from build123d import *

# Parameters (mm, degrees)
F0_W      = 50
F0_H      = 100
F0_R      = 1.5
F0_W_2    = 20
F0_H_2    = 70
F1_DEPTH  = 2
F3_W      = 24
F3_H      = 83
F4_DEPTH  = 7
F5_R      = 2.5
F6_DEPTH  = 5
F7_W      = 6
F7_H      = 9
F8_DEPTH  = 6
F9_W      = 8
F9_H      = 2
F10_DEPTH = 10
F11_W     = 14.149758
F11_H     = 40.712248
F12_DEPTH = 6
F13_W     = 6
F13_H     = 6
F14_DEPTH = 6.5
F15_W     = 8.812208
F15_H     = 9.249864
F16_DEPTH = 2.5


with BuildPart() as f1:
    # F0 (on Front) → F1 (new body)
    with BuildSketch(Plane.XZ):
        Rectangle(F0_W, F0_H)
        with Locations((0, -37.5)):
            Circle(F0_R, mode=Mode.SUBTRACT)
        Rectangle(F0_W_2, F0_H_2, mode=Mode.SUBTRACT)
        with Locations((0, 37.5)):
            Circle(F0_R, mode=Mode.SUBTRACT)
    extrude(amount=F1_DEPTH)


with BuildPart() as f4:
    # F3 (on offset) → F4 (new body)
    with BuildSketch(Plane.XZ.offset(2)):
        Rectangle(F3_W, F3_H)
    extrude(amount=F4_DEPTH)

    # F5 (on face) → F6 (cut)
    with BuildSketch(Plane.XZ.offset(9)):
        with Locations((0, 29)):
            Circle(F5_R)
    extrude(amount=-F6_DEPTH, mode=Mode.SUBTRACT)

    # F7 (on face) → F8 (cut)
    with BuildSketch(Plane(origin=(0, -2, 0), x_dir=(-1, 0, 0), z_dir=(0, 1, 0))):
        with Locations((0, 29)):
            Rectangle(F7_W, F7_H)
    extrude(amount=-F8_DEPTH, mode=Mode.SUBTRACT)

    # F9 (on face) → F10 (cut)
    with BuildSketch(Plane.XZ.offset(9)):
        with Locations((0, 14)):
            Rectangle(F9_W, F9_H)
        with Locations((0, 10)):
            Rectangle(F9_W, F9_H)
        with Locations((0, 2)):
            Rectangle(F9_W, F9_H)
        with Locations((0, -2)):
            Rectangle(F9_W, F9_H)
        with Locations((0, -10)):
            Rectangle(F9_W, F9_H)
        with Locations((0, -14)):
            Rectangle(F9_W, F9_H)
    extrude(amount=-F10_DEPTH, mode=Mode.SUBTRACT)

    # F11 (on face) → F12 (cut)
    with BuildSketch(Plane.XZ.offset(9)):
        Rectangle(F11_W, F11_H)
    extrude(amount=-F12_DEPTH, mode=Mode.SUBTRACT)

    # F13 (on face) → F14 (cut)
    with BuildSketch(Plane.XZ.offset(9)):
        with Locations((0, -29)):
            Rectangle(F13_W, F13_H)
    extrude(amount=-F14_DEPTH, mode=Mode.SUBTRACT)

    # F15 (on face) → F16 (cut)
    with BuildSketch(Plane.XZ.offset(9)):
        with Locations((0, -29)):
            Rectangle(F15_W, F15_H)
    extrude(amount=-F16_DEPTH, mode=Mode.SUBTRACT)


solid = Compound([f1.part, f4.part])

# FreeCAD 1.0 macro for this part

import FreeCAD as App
import Part
import Sketcher
from FreeCAD import Vector

doc = App.newDocument("Part")
body = doc.addObject("PartDesign::Body", "Body")

sketch1 = doc.addObject("Sketcher::SketchObject", "Sketch")
body.addObject(sketch1)
sketch1.AttachmentSupport = (doc.XZ_Plane, [""])
sketch1.MapMode = "FlatFace"
sketch1.addGeometry([
    Part.LineSegment(Vector(-25, 50, 0), Vector(-25, -50, 0)),
    Part.LineSegment(Vector(-25, -50, 0), Vector(25, -50, 0)),
    Part.LineSegment(Vector(25, -50, 0), Vector(25, 50, 0)),
    Part.LineSegment(Vector(25, 50, 0), Vector(-25, 50, 0)),
    Part.Circle(Vector(0, -37.5, 0), Vector(0, 0, 1), 1.5),
    Part.LineSegment(Vector(10, -35, 0), Vector(-10, -35, 0)),
    Part.LineSegment(Vector(-10, -35, 0), Vector(-10, 35, 0)),
    Part.LineSegment(Vector(-10, 35, 0), Vector(10, 35, 0)),
    Part.LineSegment(Vector(10, 35, 0), Vector(10, -35, 0)),
    Part.Circle(Vector(0, 37.5, 0), Vector(0, 0, 1), 1.5),
], False)
sketch1.addConstraint([
    Sketcher.Constraint("Coincident", 0, 2, 1, 1),
    Sketcher.Constraint("Coincident", 1, 2, 2, 1),
    Sketcher.Constraint("Coincident", 2, 2, 3, 1),
    Sketcher.Constraint("Coincident", 3, 2, 0, 1),
    Sketcher.Constraint("Coincident", 5, 2, 6, 1),
    Sketcher.Constraint("Coincident", 6, 2, 7, 1),
    Sketcher.Constraint("Coincident", 7, 2, 8, 1),
    Sketcher.Constraint("Coincident", 8, 2, 5, 1),
    Sketcher.Constraint("Vertical", 0),
    Sketcher.Constraint("Horizontal", 1),
    Sketcher.Constraint("Vertical", 2),
    Sketcher.Constraint("Horizontal", 3),
    Sketcher.Constraint("Horizontal", 5),
    Sketcher.Constraint("Vertical", 6),
    Sketcher.Constraint("Horizontal", 7),
    Sketcher.Constraint("Vertical", 8),
    Sketcher.Constraint("Equal", 4, 9),
    Sketcher.Constraint("Symmetric", 4, 3, 9, 3, -1, 1),
    Sketcher.Constraint("Symmetric", 0, 2, 2, 2, -1, 1),
    Sketcher.Constraint("Symmetric", 5, 2, 7, 2, -1, 1),
    Sketcher.Constraint("PointOnObject", 4, 3, -2),
    Sketcher.Constraint("Diameter", 4, 3.0),
    Sketcher.Constraint("DistanceX", 1, 1, 1, 2, 50.0),
    Sketcher.Constraint("DistanceX", 5, 2, 5, 1, 20.0),
    Sketcher.Constraint("DistanceY", 0, 2, 0, 1, 100.0),
    Sketcher.Constraint("DistanceY", 6, 1, 6, 2, 70.0),
    Sketcher.Constraint("DistanceY", 4, 3, 9, 3, 75.0),
])
pad1 = doc.addObject("PartDesign::Pad", "Pad")
body.addObject(pad1)
pad1.Profile = sketch1
pad1.Length = 2
body2 = doc.addObject("PartDesign::Body", "Body001")

sketch2 = doc.addObject("Sketcher::SketchObject", "Sketch001")
body2.addObject(sketch2)
sketch2.AttachmentSupport = (doc.getObject("XZ_Plane001"), [""])
sketch2.MapMode = "FlatFace"
sketch2.AttachmentOffset = App.Placement(Vector(0, 0, 2), App.Rotation())
sketch2.addGeometry([
    Part.LineSegment(Vector(-12, 41.5, 0), Vector(-12, -41.5, 0)),
    Part.LineSegment(Vector(-12, -41.5, 0), Vector(12, -41.5, 0)),
    Part.LineSegment(Vector(12, -41.5, 0), Vector(12, 41.5, 0)),
    Part.LineSegment(Vector(12, 41.5, 0), Vector(-12, 41.5, 0)),
], False)
sketch2.addConstraint([
    Sketcher.Constraint("Coincident", 0, 2, 1, 1),
    Sketcher.Constraint("Coincident", 1, 2, 2, 1),
    Sketcher.Constraint("Coincident", 2, 2, 3, 1),
    Sketcher.Constraint("Coincident", 3, 2, 0, 1),
    Sketcher.Constraint("Vertical", 0),
    Sketcher.Constraint("Horizontal", 1),
    Sketcher.Constraint("Vertical", 2),
    Sketcher.Constraint("Horizontal", 3),
    Sketcher.Constraint("Symmetric", 0, 2, 2, 2, -1, 1),
    Sketcher.Constraint("DistanceX", 1, 1, 1, 2, 24.0),
    Sketcher.Constraint("DistanceY", 0, 2, 0, 1, 83.0),
])
pad2 = doc.addObject("PartDesign::Pad", "Pad001")
body2.addObject(pad2)
pad2.Profile = sketch2
pad2.Length = 7

sketch3 = doc.addObject("Sketcher::SketchObject", "Sketch002")
body2.addObject(sketch3)
sketch3.AttachmentSupport = (doc.getObject("XZ_Plane001"), [""])
sketch3.MapMode = "FlatFace"
sketch3.AttachmentOffset = App.Placement(Vector(0, 0, 9), App.Rotation())
sketch3.addGeometry(Part.Circle(Vector(0, 29, 0), Vector(0, 0, 1), 2.5), False)
sketch3.addConstraint([
    Sketcher.Constraint("PointOnObject", 0, 3, -2),
    Sketcher.Constraint("Diameter", 0, 5.0),
    Sketcher.Constraint("DistanceY", -1, 1, 0, 3, 29.0),
])
pocket1 = doc.addObject("PartDesign::Pocket", "Pocket")
body2.addObject(pocket1)
pocket1.Profile = sketch3
pocket1.Length = 5

sketch4 = doc.addObject("Sketcher::SketchObject", "Sketch003")
body2.addObject(sketch4)
sketch4.AttachmentSupport = (doc.getObject("XZ_Plane001"), [""])
sketch4.MapMode = "FlatFace"
sketch4.AttachmentOffset = App.Placement(Vector(0, 0, 2), App.Rotation())
sketch4.addGeometry([
    Part.LineSegment(Vector(3, 33.5, 0), Vector(3, 24.5, 0)),
    Part.LineSegment(Vector(3, 24.5, 0), Vector(-3, 24.5, 0)),
    Part.LineSegment(Vector(-3, 24.5, 0), Vector(-3, 33.5, 0)),
    Part.LineSegment(Vector(-3, 33.5, 0), Vector(3, 33.5, 0)),
], False)
sketch4.addConstraint([
    Sketcher.Constraint("Coincident", 0, 2, 1, 1),
    Sketcher.Constraint("Coincident", 1, 2, 2, 1),
    Sketcher.Constraint("Coincident", 2, 2, 3, 1),
    Sketcher.Constraint("Coincident", 3, 2, 0, 1),
    Sketcher.Constraint("Vertical", 0),
    Sketcher.Constraint("Horizontal", 1),
    Sketcher.Constraint("Vertical", 2),
    Sketcher.Constraint("Horizontal", 3),
    Sketcher.Constraint("DistanceX", 1, 2, 1, 1, 6.0),
    Sketcher.Constraint("DistanceY", 0, 2, 0, 1, 9.0),
    Sketcher.Constraint("DistanceX", -1, 1, 0, 2, 3.0),
    Sketcher.Constraint("DistanceY", -1, 1, 0, 2, 24.5),
])
pocket2 = doc.addObject("PartDesign::Pocket", "Pocket001")
body2.addObject(pocket2)
pocket2.Profile = sketch4
pocket2.Length = 6
pocket2.Reversed = True

sketch5 = doc.addObject("Sketcher::SketchObject", "Sketch004")
body2.addObject(sketch5)
sketch5.AttachmentSupport = (doc.getObject("XZ_Plane001"), [""])
sketch5.MapMode = "FlatFace"
sketch5.AttachmentOffset = App.Placement(Vector(0, 0, 9), App.Rotation())
sketch5.addGeometry([
    Part.LineSegment(Vector(-4, 15, 0), Vector(-4, 13, 0)),
    Part.LineSegment(Vector(-4, 13, 0), Vector(4, 13, 0)),
    Part.LineSegment(Vector(4, 13, 0), Vector(4, 15, 0)),
    Part.LineSegment(Vector(4, 15, 0), Vector(-4, 15, 0)),
    Part.LineSegment(Vector(-4, 11, 0), Vector(-4, 9, 0)),
    Part.LineSegment(Vector(-4, 9, 0), Vector(4, 9, 0)),
    Part.LineSegment(Vector(4, 9, 0), Vector(4, 11, 0)),
    Part.LineSegment(Vector(4, 11, 0), Vector(-4, 11, 0)),
    Part.LineSegment(Vector(-4, 3, 0), Vector(-4, 1, 0)),
    Part.LineSegment(Vector(-4, 1, 0), Vector(4, 1, 0)),
    Part.LineSegment(Vector(4, 1, 0), Vector(4, 3, 0)),
    Part.LineSegment(Vector(4, 3, 0), Vector(-4, 3, 0)),
    Part.LineSegment(Vector(-4, -1, 0), Vector(-4, -3, 0)),
    Part.LineSegment(Vector(-4, -3, 0), Vector(4, -3, 0)),
    Part.LineSegment(Vector(4, -3, 0), Vector(4, -1, 0)),
    Part.LineSegment(Vector(4, -1, 0), Vector(-4, -1, 0)),
    Part.LineSegment(Vector(-4, -9, 0), Vector(-4, -11, 0)),
    Part.LineSegment(Vector(-4, -11, 0), Vector(4, -11, 0)),
    Part.LineSegment(Vector(4, -11, 0), Vector(4, -9, 0)),
    Part.LineSegment(Vector(4, -9, 0), Vector(-4, -9, 0)),
    Part.LineSegment(Vector(-4, -13, 0), Vector(-4, -15, 0)),
    Part.LineSegment(Vector(-4, -15, 0), Vector(4, -15, 0)),
    Part.LineSegment(Vector(4, -15, 0), Vector(4, -13, 0)),
    Part.LineSegment(Vector(4, -13, 0), Vector(-4, -13, 0)),
], False)
sketch5.addConstraint([
    Sketcher.Constraint("Coincident", 0, 2, 1, 1),
    Sketcher.Constraint("Coincident", 1, 2, 2, 1),
    Sketcher.Constraint("Coincident", 2, 2, 3, 1),
    Sketcher.Constraint("Coincident", 3, 2, 0, 1),
    Sketcher.Constraint("Coincident", 4, 2, 5, 1),
    Sketcher.Constraint("Coincident", 5, 2, 6, 1),
    Sketcher.Constraint("Coincident", 6, 2, 7, 1),
    Sketcher.Constraint("Coincident", 7, 2, 4, 1),
    Sketcher.Constraint("Coincident", 8, 2, 9, 1),
    Sketcher.Constraint("Coincident", 9, 2, 10, 1),
    Sketcher.Constraint("Coincident", 10, 2, 11, 1),
    Sketcher.Constraint("Coincident", 11, 2, 8, 1),
    Sketcher.Constraint("Coincident", 12, 2, 13, 1),
    Sketcher.Constraint("Coincident", 13, 2, 14, 1),
    Sketcher.Constraint("Coincident", 14, 2, 15, 1),
    Sketcher.Constraint("Coincident", 15, 2, 12, 1),
    Sketcher.Constraint("Coincident", 16, 2, 17, 1),
    Sketcher.Constraint("Coincident", 17, 2, 18, 1),
    Sketcher.Constraint("Coincident", 18, 2, 19, 1),
    Sketcher.Constraint("Coincident", 19, 2, 16, 1),
    Sketcher.Constraint("Coincident", 20, 2, 21, 1),
    Sketcher.Constraint("Coincident", 21, 2, 22, 1),
    Sketcher.Constraint("Coincident", 22, 2, 23, 1),
    Sketcher.Constraint("Coincident", 23, 2, 20, 1),
    Sketcher.Constraint("Vertical", 0),
    Sketcher.Constraint("Horizontal", 1),
    Sketcher.Constraint("Vertical", 2),
    Sketcher.Constraint("Horizontal", 3),
    Sketcher.Constraint("Vertical", 4),
    Sketcher.Constraint("Horizontal", 5),
    Sketcher.Constraint("Vertical", 6),
    Sketcher.Constraint("Horizontal", 7),
    Sketcher.Constraint("Vertical", 8),
    Sketcher.Constraint("Horizontal", 9),
    Sketcher.Constraint("Vertical", 10),
    Sketcher.Constraint("Horizontal", 11),
    Sketcher.Constraint("Vertical", 12),
    Sketcher.Constraint("Horizontal", 13),
    Sketcher.Constraint("Vertical", 14),
    Sketcher.Constraint("Horizontal", 15),
    Sketcher.Constraint("Vertical", 16),
    Sketcher.Constraint("Horizontal", 17),
    Sketcher.Constraint("Vertical", 18),
    Sketcher.Constraint("Horizontal", 19),
    Sketcher.Constraint("Vertical", 20),
    Sketcher.Constraint("Horizontal", 21),
    Sketcher.Constraint("Vertical", 22),
    Sketcher.Constraint("Horizontal", 23),
    Sketcher.Constraint("Symmetric", 10, 2, 12, 2, -1, 1),
    Sketcher.Constraint("Symmetric", 8, 2, 14, 2, -1, 1),
    Sketcher.Constraint("Symmetric", 6, 2, 16, 2, -1, 1),
    Sketcher.Constraint("Symmetric", 4, 2, 18, 2, -1, 1),
    Sketcher.Constraint("Symmetric", 2, 2, 20, 2, -1, 1),
    Sketcher.Constraint("Symmetric", 0, 2, 22, 2, -1, 1),
    Sketcher.Constraint("Vertical", 3, 2, 4, 2),
    Sketcher.Constraint("Vertical", 2, 2, 5, 2),
    Sketcher.Constraint("Vertical", 7, 2, 8, 2),
    Sketcher.Constraint("Vertical", 6, 2, 9, 2),
    Sketcher.Constraint("Vertical", 11, 2, 12, 2),
    Sketcher.Constraint("Equal", 2, 4),
    Sketcher.Constraint("Equal", 6, 8),
    Sketcher.Constraint("DistanceX", 1, 1, 1, 2, 8.0),
    Sketcher.Constraint("DistanceY", 0, 2, 0, 1, 2.0),
    Sketcher.Constraint("DistanceY", -1, 1, 0, 2, 13.0),
    Sketcher.Constraint("DistanceY", -1, 1, 4, 2, 9.0),
    Sketcher.Constraint("DistanceY", -1, 1, 8, 2, 1.0),
])
pocket3 = doc.addObject("PartDesign::Pocket", "Pocket002")
body2.addObject(pocket3)
pocket3.Profile = sketch5
pocket3.Length = 10

sketch6 = doc.addObject("Sketcher::SketchObject", "Sketch005")
body2.addObject(sketch6)
sketch6.AttachmentSupport = (doc.getObject("XZ_Plane001"), [""])
sketch6.MapMode = "FlatFace"
sketch6.AttachmentOffset = App.Placement(Vector(0, 0, 9), App.Rotation())
sketch6.addGeometry([
    Part.LineSegment(Vector(-7.074879, 20.356124, 0), Vector(-7.074879, -20.356124, 0)),
    Part.LineSegment(Vector(-7.074879, -20.356124, 0), Vector(7.074879, -20.356124, 0)),
    Part.LineSegment(Vector(7.074879, -20.356124, 0), Vector(7.074879, 20.356124, 0)),
    Part.LineSegment(Vector(7.074879, 20.356124, 0), Vector(-7.074879, 20.356124, 0)),
], False)
sketch6.addConstraint([
    Sketcher.Constraint("Coincident", 0, 2, 1, 1),
    Sketcher.Constraint("Coincident", 1, 2, 2, 1),
    Sketcher.Constraint("Coincident", 2, 2, 3, 1),
    Sketcher.Constraint("Coincident", 3, 2, 0, 1),
    Sketcher.Constraint("Vertical", 0),
    Sketcher.Constraint("Horizontal", 1),
    Sketcher.Constraint("Vertical", 2),
    Sketcher.Constraint("Horizontal", 3),
    Sketcher.Constraint("Symmetric", 0, 2, 2, 2, -1, 1),
    Sketcher.Constraint("DistanceY", 0, 2, 0, 1, 40.712248),
    Sketcher.Constraint("DistanceX", 1, 1, 1, 2, 14.149758),
])
pocket4 = doc.addObject("PartDesign::Pocket", "Pocket003")
body2.addObject(pocket4)
pocket4.Profile = sketch6
pocket4.Length = 6

sketch7 = doc.addObject("Sketcher::SketchObject", "Sketch006")
body2.addObject(sketch7)
sketch7.AttachmentSupport = (doc.getObject("XZ_Plane001"), [""])
sketch7.MapMode = "FlatFace"
sketch7.AttachmentOffset = App.Placement(Vector(0, 0, 9), App.Rotation())
sketch7.addGeometry([
    Part.LineSegment(Vector(-3, -26, 0), Vector(-3, -32, 0)),
    Part.LineSegment(Vector(-3, -32, 0), Vector(3, -32, 0)),
    Part.LineSegment(Vector(3, -32, 0), Vector(3, -26, 0)),
    Part.LineSegment(Vector(3, -26, 0), Vector(-3, -26, 0)),
], False)
sketch7.addConstraint([
    Sketcher.Constraint("Coincident", 0, 2, 1, 1),
    Sketcher.Constraint("Coincident", 1, 2, 2, 1),
    Sketcher.Constraint("Coincident", 2, 2, 3, 1),
    Sketcher.Constraint("Coincident", 3, 2, 0, 1),
    Sketcher.Constraint("Vertical", 0),
    Sketcher.Constraint("Horizontal", 1),
    Sketcher.Constraint("Vertical", 2),
    Sketcher.Constraint("Horizontal", 3),
    Sketcher.Constraint("Equal", 3, 0),
    Sketcher.Constraint("DistanceX", 1, 1, 1, 2, 6.0),
    Sketcher.Constraint("DistanceX", 0, 2, -1, 1, 3.0),
    Sketcher.Constraint("DistanceY", 0, 2, -1, 1, 32.0),
])
pocket5 = doc.addObject("PartDesign::Pocket", "Pocket004")
body2.addObject(pocket5)
pocket5.Profile = sketch7
pocket5.Length = 6.5

sketch8 = doc.addObject("Sketcher::SketchObject", "Sketch007")
body2.addObject(sketch8)
sketch8.AttachmentSupport = (doc.getObject("XZ_Plane001"), [""])
sketch8.MapMode = "FlatFace"
sketch8.AttachmentOffset = App.Placement(Vector(0, 0, 9), App.Rotation())
sketch8.addGeometry([
    Part.LineSegment(Vector(-4.406104, -24.375068, 0), Vector(-4.406104, -33.624932, 0)),
    Part.LineSegment(Vector(-4.406104, -33.624932, 0), Vector(4.406104, -33.624932, 0)),
    Part.LineSegment(Vector(4.406104, -33.624932, 0), Vector(4.406104, -24.375068, 0)),
    Part.LineSegment(Vector(4.406104, -24.375068, 0), Vector(-4.406104, -24.375068, 0)),
], False)
sketch8.addConstraint([
    Sketcher.Constraint("Coincident", 0, 2, 1, 1),
    Sketcher.Constraint("Coincident", 1, 2, 2, 1),
    Sketcher.Constraint("Coincident", 2, 2, 3, 1),
    Sketcher.Constraint("Coincident", 3, 2, 0, 1),
    Sketcher.Constraint("Vertical", 0),
    Sketcher.Constraint("Horizontal", 1),
    Sketcher.Constraint("Vertical", 2),
    Sketcher.Constraint("Horizontal", 3),
    Sketcher.Constraint("DistanceX", 1, 1, 1, 2, 8.812208),
    Sketcher.Constraint("DistanceY", 0, 2, 0, 1, 9.249864),
    Sketcher.Constraint("DistanceX", 0, 2, -1, 1, 4.406104),
    Sketcher.Constraint("DistanceY", 0, 2, -1, 1, 33.624932),
])
pocket6 = doc.addObject("PartDesign::Pocket", "Pocket005")
body2.addObject(pocket6)
pocket6.Profile = sketch8
pocket6.Length = 2.5

doc.recompute()
